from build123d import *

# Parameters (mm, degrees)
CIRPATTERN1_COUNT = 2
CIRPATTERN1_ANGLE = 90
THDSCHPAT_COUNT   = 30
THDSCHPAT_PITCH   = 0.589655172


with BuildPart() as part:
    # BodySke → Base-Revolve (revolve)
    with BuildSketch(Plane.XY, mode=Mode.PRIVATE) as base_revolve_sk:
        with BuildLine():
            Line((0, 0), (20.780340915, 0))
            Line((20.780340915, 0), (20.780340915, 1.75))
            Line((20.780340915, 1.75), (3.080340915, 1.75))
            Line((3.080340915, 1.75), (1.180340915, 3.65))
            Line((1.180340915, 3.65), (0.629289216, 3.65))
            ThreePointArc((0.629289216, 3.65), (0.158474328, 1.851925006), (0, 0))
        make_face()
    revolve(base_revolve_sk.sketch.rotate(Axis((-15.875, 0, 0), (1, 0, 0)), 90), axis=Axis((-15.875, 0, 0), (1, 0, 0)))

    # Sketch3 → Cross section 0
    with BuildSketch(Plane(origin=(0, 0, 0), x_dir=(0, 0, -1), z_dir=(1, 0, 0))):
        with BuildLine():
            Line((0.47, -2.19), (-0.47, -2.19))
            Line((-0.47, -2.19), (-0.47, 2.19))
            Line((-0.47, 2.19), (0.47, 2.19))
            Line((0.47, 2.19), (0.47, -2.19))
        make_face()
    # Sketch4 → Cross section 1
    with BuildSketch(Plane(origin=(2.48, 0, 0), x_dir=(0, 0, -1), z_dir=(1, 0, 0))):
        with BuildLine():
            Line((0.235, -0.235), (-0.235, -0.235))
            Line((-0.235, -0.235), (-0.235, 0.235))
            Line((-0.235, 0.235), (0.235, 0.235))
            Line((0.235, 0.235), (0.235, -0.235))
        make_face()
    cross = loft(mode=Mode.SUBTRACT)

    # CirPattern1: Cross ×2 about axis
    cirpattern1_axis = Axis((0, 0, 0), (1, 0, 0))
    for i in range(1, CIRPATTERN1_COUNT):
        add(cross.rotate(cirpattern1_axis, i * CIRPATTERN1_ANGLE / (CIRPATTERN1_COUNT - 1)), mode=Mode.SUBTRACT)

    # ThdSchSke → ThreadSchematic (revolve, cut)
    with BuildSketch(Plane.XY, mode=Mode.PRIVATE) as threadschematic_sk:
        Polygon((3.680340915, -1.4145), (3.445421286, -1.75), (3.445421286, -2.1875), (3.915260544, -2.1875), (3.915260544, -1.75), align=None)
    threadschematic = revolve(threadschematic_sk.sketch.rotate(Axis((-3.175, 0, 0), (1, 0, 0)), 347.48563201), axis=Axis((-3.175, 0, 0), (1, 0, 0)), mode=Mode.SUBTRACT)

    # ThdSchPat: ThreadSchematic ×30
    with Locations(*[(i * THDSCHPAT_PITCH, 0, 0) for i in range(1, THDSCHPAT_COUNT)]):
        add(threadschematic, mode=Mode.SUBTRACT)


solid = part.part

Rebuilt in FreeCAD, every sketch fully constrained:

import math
import FreeCAD as App
import Part
import Sketcher

V = App.Vector
Q = App.Units.Quantity


def add_polygon(sketch, points):
    """Adds a closed chain of lines whose ends are joined by coincident constraints."""
    first, n = sketch.GeometryCount, len(points)
    for a, b in zip(points, points[1:] + points[:1]):
        sketch.addGeometry(Part.LineSegment(App.Vector(*a, 0), App.Vector(*b, 0)), False)
    for i in range(n):
        sketch.addConstraint(Sketcher.Constraint("Coincident", first + i, 2, first + (i + 1) % n, 1))

doc = App.newDocument("Part")
body = doc.addObject("PartDesign::Body", "Body")

# Sketch on XY plane
sketch1 = body.newObject("Sketcher::SketchObject", "Sketch")
sketch1.AttachmentSupport = (doc.getObject("XY_Plane"), [""])
sketch1.MapMode = "FlatFace"
sketch1.addGeometry(Part.LineSegment(V(0, 0, 0), V(20.8, 0, 0)), False)
sketch1.addGeometry(Part.LineSegment(V(20.8, 0, 0), V(20.8, 1.8, 0)), False)
sketch1.addGeometry(Part.LineSegment(V(20.8, 1.8, 0), V(3.1, 1.8, 0)), False)
sketch1.addGeometry(Part.LineSegment(V(3.1, 1.8, 0), V(1.2, 3.6, 0)), False)
sketch1.addGeometry(Part.LineSegment(V(1.2, 3.6, 0), V(0.6, 3.6, 0)), False)
sketch1.addGeometry(Part.ArcOfCircle(Part.Circle(V(10.9, 0, 0), V(0, 0, 1), 10.9), math.radians(160.44), math.radians(180)), False)
sketch1.addConstraint(Sketcher.Constraint("Coincident", 0, 2, 1, 1))
sketch1.addConstraint(Sketcher.Constraint("Coincident", 1, 2, 2, 1))
sketch1.addConstraint(Sketcher.Constraint("Coincident", 2, 2, 3, 1))
sketch1.addConstraint(Sketcher.Constraint("Coincident", 3, 2, 4, 1))
sketch1.addConstraint(Sketcher.Constraint("Coincident", 4, 2, 5, 1))
sketch1.addConstraint(Sketcher.Constraint("Coincident", 5, 2, 0, 1))
sketch1.addConstraint(Sketcher.Constraint("Horizontal", 0))
sketch1.addConstraint(Sketcher.Constraint("Vertical", 1))
sketch1.addConstraint(Sketcher.Constraint("Horizontal", 2))
sketch1.addConstraint(Sketcher.Constraint("Horizontal", 4))
sketch1.addConstraint(Sketcher.Constraint("Coincident", 5, 2, -1, 1))
sketch1.addConstraint(Sketcher.Constraint("PointOnObject", 5, 3, -1))
sketch1.addConstraint(Sketcher.Constraint("Radius", 5, 10.9))
sketch1.addConstraint(Sketcher.Constraint("Angle", 3, Q("135 deg")))
sketch1.addConstraint(Sketcher.Constraint("DistanceX", 2, 2, 2, 1, 17.7))
sketch1.addConstraint(Sketcher.Constraint("DistanceY", 1, 1, 1, 2, 1.75))
sketch1.addConstraint(Sketcher.Constraint("DistanceX", 3, 2, 2, 2, 1.9))
sketch1.addConstraint(Sketcher.Constraint("DistanceX", 0, 1, 0, 2, 20.780341))
revolution = body.newObject("PartDesign::Revolution", "Revolution")
revolution.Profile = sketch1
revolution.ReferenceAxis = (sketch1, ["H_Axis"])
revolution.Angle = 360

# Sketch on YZ plane
sketch2 = body.newObject("Sketcher::SketchObject", "Sketch001")
sketch2.AttachmentSupport = (doc.getObject("YZ_Plane"), [""])
sketch2.MapMode = "FlatFace"
add_polygon(sketch2, [(-2.2, 0.5), (-2.2, -0.5), (2.2, -0.5), (2.2, 0.5)])  # lines 0-3
sketch2.addConstraint(Sketcher.Constraint("Vertical", 0))
sketch2.addConstraint(Sketcher.Constraint("Horizontal", 1))
sketch2.addConstraint(Sketcher.Constraint("Vertical", 2))
sketch2.addConstraint(Sketcher.Constraint("Horizontal", 3))
sketch2.addConstraint(Sketcher.Constraint("Symmetric", 0, 2, 2, 2, -1, 1))
sketch2.addConstraint(Sketcher.Constraint("DistanceX", 1, 1, 1, 2, 4.38))
sketch2.addConstraint(Sketcher.Constraint("DistanceY", 0, 2, 0, 1, 0.94))

# Sketch on YZ plane
sketch3 = body.newObject("Sketcher::SketchObject", "Sketch002")
sketch3.AttachmentSupport = (doc.getObject("YZ_Plane"), [""])
sketch3.MapMode = "FlatFace"
sketch3.AttachmentOffset = App.Placement(V(0, 0, 2.48), App.Rotation())
add_polygon(sketch3, [(-0.23, 0.23), (-0.23, -0.23), (0.23, -0.23), (0.23, 0.23)])  # lines 0-3
sketch3.addConstraint(Sketcher.Constraint("Vertical", 0))
sketch3.addConstraint(Sketcher.Constraint("Horizontal", 1))
sketch3.addConstraint(Sketcher.Constraint("Vertical", 2))
sketch3.addConstraint(Sketcher.Constraint("Horizontal", 3))
sketch3.addConstraint(Sketcher.Constraint("Symmetric", 0, 2, 2, 2, -1, 1))
sketch3.addConstraint(Sketcher.Constraint("Equal", 3, 0))
sketch3.addConstraint(Sketcher.Constraint("DistanceX", 1, 1, 1, 2, 0.47))

subtractiveloft = body.newObject("PartDesign::SubtractiveLoft", "SubtractiveLoft")
subtractiveloft.Profile = sketch2
subtractiveloft.Sections = [sketch3]
doc.recompute()

polarpattern = body.newObject("PartDesign::PolarPattern", "PolarPattern")
polarpattern.Originals = [subtractiveloft]
polarpattern.Axis = (doc.getObject("X_Axis"), [""])
polarpattern.Angle = 90
polarpattern.Occurrences = 2
body.Tip = polarpattern

# Sketch on XY plane
sketch4 = body.newObject("Sketcher::SketchObject", "Sketch003")
sketch4.AttachmentSupport = (doc.getObject("XY_Plane"), [""])
sketch4.MapMode = "FlatFace"
add_polygon(sketch4, [(3.68, -1.41), (3.45, -1.75), (3.45, -2.19), (3.92, -2.19), (3.92, -1.75)])  # lines 0-4
sketch4.addConstraint(Sketcher.Constraint("Vertical", 1))
sketch4.addConstraint(Sketcher.Constraint("Horizontal", 2))
sketch4.addConstraint(Sketcher.Constraint("Vertical", 3))
sketch4.addConstraint(Sketcher.Constraint("Horizontal", 0, 2, 3, 2))
sketch4.addConstraint(Sketcher.Constraint("Equal", 0, 4))
sketch4.addConstraint(Sketcher.Constraint("Angle", 0, Q("-125 deg")))
sketch4.addConstraint(Sketcher.Constraint("DistanceY", 0, 2, -1, 1, 1.75))
sketch4.addConstraint(Sketcher.Constraint("DistanceY", 1, 2, 1, 1, 0.4375))
sketch4.addConstraint(Sketcher.Constraint("DistanceY", 1, 2, 4, 2, 0.773))
sketch4.addConstraint(Sketcher.Constraint("DistanceX", -1, 1, 0, 2, 3.445421))
groove = body.newObject("PartDesign::Groove", "Groove")
groove.Profile = sketch4
groove.ReferenceAxis = (sketch4, ["H_Axis"])
groove.Angle = 360
doc.recompute()

linearpattern = body.newObject("PartDesign::LinearPattern", "LinearPattern")
linearpattern.Originals = [groove]
linearpattern.Direction = (doc.getObject("X_Axis"), [""])
linearpattern.Mode = "offset"
linearpattern.Offset = 0.589655
linearpattern.Occurrences = 30
body.Tip = linearpattern

doc.recompute()
